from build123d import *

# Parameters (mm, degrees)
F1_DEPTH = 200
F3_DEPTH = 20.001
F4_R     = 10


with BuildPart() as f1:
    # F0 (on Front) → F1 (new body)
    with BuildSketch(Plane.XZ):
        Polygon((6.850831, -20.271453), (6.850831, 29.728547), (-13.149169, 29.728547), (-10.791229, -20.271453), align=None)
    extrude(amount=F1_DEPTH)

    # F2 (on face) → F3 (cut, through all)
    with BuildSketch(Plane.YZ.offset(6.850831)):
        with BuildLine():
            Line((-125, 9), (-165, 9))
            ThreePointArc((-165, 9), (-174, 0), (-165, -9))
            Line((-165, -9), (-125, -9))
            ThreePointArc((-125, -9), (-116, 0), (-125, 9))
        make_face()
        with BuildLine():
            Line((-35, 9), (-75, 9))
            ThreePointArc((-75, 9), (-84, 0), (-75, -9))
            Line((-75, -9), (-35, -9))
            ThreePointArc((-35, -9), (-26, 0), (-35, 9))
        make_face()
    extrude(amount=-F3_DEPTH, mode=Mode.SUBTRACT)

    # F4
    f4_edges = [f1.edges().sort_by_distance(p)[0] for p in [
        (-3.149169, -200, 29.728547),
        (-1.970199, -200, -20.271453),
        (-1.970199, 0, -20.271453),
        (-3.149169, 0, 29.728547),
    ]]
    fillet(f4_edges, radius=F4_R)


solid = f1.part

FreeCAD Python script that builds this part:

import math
import FreeCAD as App
import Part
import Sketcher
Q = App.Units.Quantity


def edges_at(feature, points):
    """Names of the edges that pass closest to the given points."""
    edges = feature.Shape.Edges
    near = lambda p: min(range(len(edges)), key=lambda i: edges[i].distToShape(Part.Vertex(*p))[0])
    return sorted({f"Edge{near(p) + 1}" for p in points})

doc = App.newDocument("Part")
params = doc.addObject("Spreadsheet::Sheet", "Params")
for row, (alias, value) in enumerate([
    ("sketch1_width", "20 mm"),
    ("sketch1_height", "50 mm"),
    ("pad1_length", "200 mm"),
    ("sketch2_radius", "9 mm"),
    ("sketch2_width", "40 mm"),
    ("fillet_radius", "10 mm"),
], start=1):
    params.set(f"A{row}", alias)
    params.set(f"B{row}", "=" + value)
    params.setAlias(f"B{row}", alias)

body = doc.addObject("PartDesign::Body", "Body")

sketch1 = body.newObject("Sketcher::SketchObject", "Sketch")
sketch1.AttachmentSupport = (doc.getObject("XZ_Plane"), [""])
sketch1.MapMode = "FlatFace"
sketch1.addGeometry(Part.LineSegment(App.Vector(7, -20, 0), App.Vector(7, 30, 0)), False)
sketch1.addGeometry(Part.LineSegment(App.Vector(7, 30, 0), App.Vector(-13, 30, 0)), False)
sketch1.addGeometry(Part.LineSegment(App.Vector(-13, 30, 0), App.Vector(-11, -20, 0)), False)
sketch1.addGeometry(Part.LineSegment(App.Vector(-11, -20, 0), App.Vector(7, -20, 0)), False)
sketch1.addConstraint(Sketcher.Constraint("Coincident", 0, 2, 1, 1))
sketch1.addConstraint(Sketcher.Constraint("Coincident", 1, 2, 2, 1))
sketch1.addConstraint(Sketcher.Constraint("Coincident", 2, 2, 3, 1))
sketch1.addConstraint(Sketcher.Constraint("Coincident", 3, 2, 0, 1))
sketch1.addConstraint(Sketcher.Constraint("Vertical", 0))
sketch1.addConstraint(Sketcher.Constraint("Horizontal", 1))
sketch1.addConstraint(Sketcher.Constraint("Horizontal", 3))
sketch1.addConstraint(Sketcher.Constraint("DistanceX", 1, 2, 1, 1, Q("20 mm")))
sketch1.addConstraint(Sketcher.Constraint("DistanceY", 0, 1, 0, 2, Q("50 mm")))
sketch1.addConstraint(Sketcher.Constraint("Angle", 2, Q("-87.3 deg")))
sketch1.addConstraint(Sketcher.Constraint("DistanceX", -1, 1, 0, 2, Q("6.850831 mm")))
sketch1.addConstraint(Sketcher.Constraint("DistanceY", -1, 1, 0, 2, Q("29.728547 mm")))
sketch1.setExpression("Constraints[7]", "Params.sketch1_width")
sketch1.setExpression("Constraints[8]", "Params.sketch1_height")
pad1 = body.newObject("PartDesign::Pad", "Pad")
pad1.Profile = sketch1
pad1.setExpression("Length", "Params.pad1_length")

sketch2 = body.newObject("Sketcher::SketchObject", "Sketch001")
sketch2.AttachmentSupport = (doc.getObject("YZ_Plane"), [""])
sketch2.MapMode = "FlatFace"
sketch2.AttachmentOffset = App.Placement(App.Vector(0, 0, 6.850831), App.Rotation())
sketch2.addGeometry(Part.LineSegment(App.Vector(-125, 9, 0), App.Vector(-165, 9, 0)), False)
sketch2.addGeometry(Part.ArcOfCircle(Part.Circle(App.Vector(-165, 0, 0), App.Vector(0, 0, 1), 9), math.radians(90), math.radians(270)), False)
sketch2.addGeometry(Part.LineSegment(App.Vector(-165, -9, 0), App.Vector(-125, -9, 0)), False)
sketch2.addGeometry(Part.ArcOfCircle(Part.Circle(App.Vector(-125, 0, 0), App.Vector(0, 0, 1), 9), math.radians(-90), math.radians(90)), False)
sketch2.addGeometry(Part.LineSegment(App.Vector(-35, 9, 0), App.Vector(-75, 9, 0)), False)
sketch2.addGeometry(Part.ArcOfCircle(Part.Circle(App.Vector(-75, 0, 0), App.Vector(0, 0, 1), 9), math.radians(90), math.radians(270)), False)
sketch2.addGeometry(Part.LineSegment(App.Vector(-75, -9, 0), App.Vector(-35, -9, 0)), False)
sketch2.addGeometry(Part.ArcOfCircle(Part.Circle(App.Vector(-35, 0, 0), App.Vector(0, 0, 1), 9), math.radians(-90), math.radians(90)), False)
sketch2.addConstraint(Sketcher.Constraint("Tangent", 0, 2, 1, 1))
sketch2.addConstraint(Sketcher.Constraint("Tangent", 1, 2, 2, 1))
sketch2.addConstraint(Sketcher.Constraint("Tangent", 2, 2, 3, 1))
sketch2.addConstraint(Sketcher.Constraint("Tangent", 3, 2, 0, 1))
sketch2.addConstraint(Sketcher.Constraint("Tangent", 4, 2, 5, 1))
sketch2.addConstraint(Sketcher.Constraint("Tangent", 5, 2, 6, 1))
sketch2.addConstraint(Sketcher.Constraint("Tangent", 6, 2, 7, 1))
sketch2.addConstraint(Sketcher.Constraint("Tangent", 7, 2, 4, 1))
sketch2.addConstraint(Sketcher.Constraint("Horizontal", 0))
sketch2.addConstraint(Sketcher.Constraint("Horizontal", 2))
sketch2.addConstraint(Sketcher.Constraint("Horizontal", 4))
sketch2.addConstraint(Sketcher.Constraint("Horizontal", 6))
sketch2.addConstraint(Sketcher.Constraint("Equal", 3, 5))
sketch2.addConstraint(Sketcher.Constraint("PointOnObject", 1, 3, -1))
sketch2.addConstraint(Sketcher.Constraint("PointOnObject", 5, 3, -1))
sketch2.addConstraint(Sketcher.Constraint("Equal", 2, 4))
sketch2.addConstraint(Sketcher.Constraint("Radius", 1, Q("9 mm")))
sketch2.addConstraint(Sketcher.Constraint("DistanceX", 0, 2, 0, 1, Q("40 mm")))
sketch2.addConstraint(Sketcher.Constraint("DistanceX", 1, 3, -1, 1, Q("165 mm")))
sketch2.addConstraint(Sketcher.Constraint("DistanceX", 5, 3, -1, 1, Q("75 mm")))
sketch2.setExpression("Constraints[16]", "Params.sketch2_radius")
sketch2.setExpression("Constraints[17]", "Params.sketch2_width")
pocket1 = body.newObject("PartDesign::Pocket", "Pocket")
pocket1.Profile = sketch2
pocket1.Type = "ThroughAll"
doc.recompute()

fillet = body.newObject("PartDesign::Fillet", "Fillet")
fillet.Base = (pocket1, edges_at(pocket1, [
    (-3.149, -200, 29.729),
    (-1.97, -200, -20.271),
    (-1.97, 0, -20.271),
    (-3.149, 0, 29.729),
]))
fillet.setExpression("Radius", "Params.fillet_radius")

doc.recompute()
